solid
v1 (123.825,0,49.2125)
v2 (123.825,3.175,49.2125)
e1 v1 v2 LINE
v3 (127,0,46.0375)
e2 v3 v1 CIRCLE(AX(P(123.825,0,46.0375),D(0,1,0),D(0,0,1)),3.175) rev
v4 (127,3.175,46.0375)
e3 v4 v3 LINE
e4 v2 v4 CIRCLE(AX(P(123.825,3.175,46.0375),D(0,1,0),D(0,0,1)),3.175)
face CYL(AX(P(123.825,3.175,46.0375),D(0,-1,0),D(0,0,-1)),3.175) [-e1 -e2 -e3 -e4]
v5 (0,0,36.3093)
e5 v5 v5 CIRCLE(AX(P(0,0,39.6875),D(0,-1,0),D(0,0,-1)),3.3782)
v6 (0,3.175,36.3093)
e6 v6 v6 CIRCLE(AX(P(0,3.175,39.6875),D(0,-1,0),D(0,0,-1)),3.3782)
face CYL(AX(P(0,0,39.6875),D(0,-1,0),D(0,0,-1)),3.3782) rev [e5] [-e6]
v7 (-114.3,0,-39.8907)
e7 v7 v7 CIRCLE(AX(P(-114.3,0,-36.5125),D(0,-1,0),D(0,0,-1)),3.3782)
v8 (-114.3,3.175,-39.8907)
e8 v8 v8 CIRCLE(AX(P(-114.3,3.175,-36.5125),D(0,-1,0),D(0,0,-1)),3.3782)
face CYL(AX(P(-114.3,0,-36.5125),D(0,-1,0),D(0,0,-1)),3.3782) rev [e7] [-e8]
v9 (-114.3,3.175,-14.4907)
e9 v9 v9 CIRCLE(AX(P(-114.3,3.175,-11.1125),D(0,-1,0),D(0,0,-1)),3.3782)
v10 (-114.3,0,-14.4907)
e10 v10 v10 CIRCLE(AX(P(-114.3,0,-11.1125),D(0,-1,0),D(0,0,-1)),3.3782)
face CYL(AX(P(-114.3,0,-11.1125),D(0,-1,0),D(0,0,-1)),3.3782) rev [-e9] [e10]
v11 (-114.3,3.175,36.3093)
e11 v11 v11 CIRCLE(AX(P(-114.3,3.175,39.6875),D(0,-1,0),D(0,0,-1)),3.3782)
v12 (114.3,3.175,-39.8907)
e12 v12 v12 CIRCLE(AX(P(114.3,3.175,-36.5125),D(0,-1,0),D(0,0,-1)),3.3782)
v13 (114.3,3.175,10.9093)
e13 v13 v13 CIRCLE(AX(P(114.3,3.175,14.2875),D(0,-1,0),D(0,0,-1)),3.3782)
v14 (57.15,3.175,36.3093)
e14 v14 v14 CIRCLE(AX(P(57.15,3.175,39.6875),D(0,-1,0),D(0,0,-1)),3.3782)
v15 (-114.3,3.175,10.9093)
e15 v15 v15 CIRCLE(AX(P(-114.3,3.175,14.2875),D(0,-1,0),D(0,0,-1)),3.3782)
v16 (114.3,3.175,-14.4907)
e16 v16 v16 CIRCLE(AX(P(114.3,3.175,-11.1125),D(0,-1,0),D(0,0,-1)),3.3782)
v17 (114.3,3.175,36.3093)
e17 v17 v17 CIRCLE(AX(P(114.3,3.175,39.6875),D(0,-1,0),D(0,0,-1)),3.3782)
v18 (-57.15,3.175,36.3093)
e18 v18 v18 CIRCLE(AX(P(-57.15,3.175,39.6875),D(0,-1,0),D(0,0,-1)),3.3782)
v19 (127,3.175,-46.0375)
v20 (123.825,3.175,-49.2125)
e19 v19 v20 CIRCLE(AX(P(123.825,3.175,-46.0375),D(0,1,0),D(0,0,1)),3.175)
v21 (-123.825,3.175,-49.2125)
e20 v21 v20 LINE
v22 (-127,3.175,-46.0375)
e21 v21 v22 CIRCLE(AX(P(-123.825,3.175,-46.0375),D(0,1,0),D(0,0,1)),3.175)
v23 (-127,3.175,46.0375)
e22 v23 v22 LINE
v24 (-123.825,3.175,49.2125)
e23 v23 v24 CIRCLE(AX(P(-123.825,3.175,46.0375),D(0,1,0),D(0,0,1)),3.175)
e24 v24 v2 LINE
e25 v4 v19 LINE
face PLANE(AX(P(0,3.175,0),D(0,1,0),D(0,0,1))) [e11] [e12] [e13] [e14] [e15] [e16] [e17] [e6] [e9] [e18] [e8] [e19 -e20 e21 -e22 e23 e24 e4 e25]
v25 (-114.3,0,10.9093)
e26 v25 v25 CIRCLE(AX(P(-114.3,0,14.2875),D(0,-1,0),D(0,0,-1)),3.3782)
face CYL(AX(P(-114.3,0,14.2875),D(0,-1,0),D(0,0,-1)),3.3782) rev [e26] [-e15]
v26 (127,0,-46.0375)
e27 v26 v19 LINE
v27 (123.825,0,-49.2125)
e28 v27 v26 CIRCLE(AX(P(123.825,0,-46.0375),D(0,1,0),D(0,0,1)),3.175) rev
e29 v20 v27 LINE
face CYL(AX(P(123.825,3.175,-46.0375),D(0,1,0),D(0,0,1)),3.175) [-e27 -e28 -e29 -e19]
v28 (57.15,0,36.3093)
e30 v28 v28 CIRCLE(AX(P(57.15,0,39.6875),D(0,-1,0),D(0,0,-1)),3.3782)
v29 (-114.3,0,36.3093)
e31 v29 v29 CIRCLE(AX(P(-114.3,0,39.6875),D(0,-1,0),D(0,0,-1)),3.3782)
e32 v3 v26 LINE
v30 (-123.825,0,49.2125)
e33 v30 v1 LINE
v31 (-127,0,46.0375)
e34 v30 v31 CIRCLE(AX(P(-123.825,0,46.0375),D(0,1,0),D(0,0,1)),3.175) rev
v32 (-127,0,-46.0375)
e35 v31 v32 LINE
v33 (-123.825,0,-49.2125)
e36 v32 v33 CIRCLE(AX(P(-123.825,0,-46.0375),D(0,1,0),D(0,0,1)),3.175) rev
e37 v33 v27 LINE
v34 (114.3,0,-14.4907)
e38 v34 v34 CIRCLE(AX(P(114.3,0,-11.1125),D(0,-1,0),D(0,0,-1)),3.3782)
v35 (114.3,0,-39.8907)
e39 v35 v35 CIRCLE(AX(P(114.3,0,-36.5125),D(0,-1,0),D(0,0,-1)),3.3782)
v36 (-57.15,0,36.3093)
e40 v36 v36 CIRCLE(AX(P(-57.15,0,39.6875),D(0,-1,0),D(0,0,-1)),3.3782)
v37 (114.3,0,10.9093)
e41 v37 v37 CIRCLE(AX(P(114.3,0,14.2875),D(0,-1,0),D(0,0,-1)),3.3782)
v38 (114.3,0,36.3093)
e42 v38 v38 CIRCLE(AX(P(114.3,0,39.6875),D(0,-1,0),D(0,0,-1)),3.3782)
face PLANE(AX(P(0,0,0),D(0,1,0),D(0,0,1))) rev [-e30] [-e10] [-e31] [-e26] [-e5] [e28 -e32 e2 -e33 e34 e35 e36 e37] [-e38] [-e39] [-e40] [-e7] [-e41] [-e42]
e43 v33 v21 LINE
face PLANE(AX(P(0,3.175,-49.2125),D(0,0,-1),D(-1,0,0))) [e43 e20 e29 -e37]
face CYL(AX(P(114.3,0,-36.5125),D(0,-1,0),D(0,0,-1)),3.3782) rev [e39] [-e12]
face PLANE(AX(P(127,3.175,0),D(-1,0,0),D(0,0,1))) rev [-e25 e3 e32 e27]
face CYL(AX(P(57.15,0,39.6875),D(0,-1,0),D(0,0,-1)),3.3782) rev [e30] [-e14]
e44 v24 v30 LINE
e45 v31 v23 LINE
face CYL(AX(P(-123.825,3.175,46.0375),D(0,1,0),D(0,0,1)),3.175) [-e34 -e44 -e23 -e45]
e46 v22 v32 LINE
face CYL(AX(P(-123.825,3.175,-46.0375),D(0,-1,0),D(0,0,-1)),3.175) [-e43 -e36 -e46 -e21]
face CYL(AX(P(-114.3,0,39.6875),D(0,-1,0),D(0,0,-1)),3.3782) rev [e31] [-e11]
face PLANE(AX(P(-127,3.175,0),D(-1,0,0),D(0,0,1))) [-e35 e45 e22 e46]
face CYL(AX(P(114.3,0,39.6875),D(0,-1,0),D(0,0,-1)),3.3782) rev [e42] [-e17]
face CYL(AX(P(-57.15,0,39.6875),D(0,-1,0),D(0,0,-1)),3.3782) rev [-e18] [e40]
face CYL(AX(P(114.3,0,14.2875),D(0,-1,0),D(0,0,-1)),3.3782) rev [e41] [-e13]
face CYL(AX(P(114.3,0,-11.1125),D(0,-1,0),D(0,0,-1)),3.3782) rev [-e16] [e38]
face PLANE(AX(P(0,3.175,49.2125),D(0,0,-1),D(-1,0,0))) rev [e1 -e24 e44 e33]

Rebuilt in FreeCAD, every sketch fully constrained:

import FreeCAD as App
import Part
import Sketcher
Q = App.Units.Quantity


def edges_at(feature, points):
    """Names of the edges that pass closest to the given points."""
    edges = feature.Shape.Edges
    near = lambda p: min(range(len(edges)), key=lambda i: edges[i].distToShape(Part.Vertex(*p))[0])
    return sorted({f"Edge{near(p) + 1}" for p in points})

doc = App.newDocument("Part")
body = doc.addObject("PartDesign::Body", "Body")

# Sketch on XZ plane
sketch1 = doc.addObject("Sketcher::SketchObject", "Sketch")
body.addObject(sketch1)
sketch1.AttachmentSupport = (doc.XZ_Plane, [""])
sketch1.MapMode = "FlatFace"
sketch1.addGeometry([
    Part.LineSegment(App.Vector(-127, -49, 0), App.Vector(-127, 49, 0)),
    Part.LineSegment(App.Vector(-127, 49, 0), App.Vector(127, 49, 0)),
    Part.LineSegment(App.Vector(127, 49, 0), App.Vector(127, -49, 0)),
    Part.LineSegment(App.Vector(127, -49, 0), App.Vector(-127, -49, 0)),
], False)
sketch1.addConstraint([
    Sketcher.Constraint("Coincident", 0, 2, 1, 1),
    Sketcher.Constraint("Coincident", 1, 2, 2, 1),
    Sketcher.Constraint("Coincident", 2, 2, 3, 1),
    Sketcher.Constraint("Coincident", 3, 2, 0, 1),
    Sketcher.Constraint("Vertical", 0),
    Sketcher.Constraint("Horizontal", 1),
    Sketcher.Constraint("Vertical", 2),
    Sketcher.Constraint("Horizontal", 3),
    Sketcher.Constraint("Symmetric", 0, 2, 2, 2, -1, 1),
    Sketcher.Constraint("DistanceX", 1, 1, 1, 2, Q("10 in")),
    Sketcher.Constraint("DistanceY", 0, 1, 0, 2, Q("3.875 in")),
])
pad1 = doc.addObject("PartDesign::Pad", "Pad")
body.addObject(pad1)
pad1.Profile = sketch1
pad1.Length = Q("0.125 in")
pad1.Reversed = True

# Sketch on XZ plane
sketch2 = doc.addObject("Sketcher::SketchObject", "Sketch001")
body.addObject(sketch2)
sketch2.AttachmentSupport = (doc.XZ_Plane, [""])
sketch2.MapMode = "FlatFace"
sketch2.addGeometry([
    Part.Circle(App.Vector(114.3, -36.5, 0), App.Vector(0, 0, 1), 3.4),  # 0
    Part.Circle(App.Vector(114.3, -11.1, 0), App.Vector(0, 0, 1), 3.4),  # 1
    Part.Circle(App.Vector(114.3, 14.3, 0), App.Vector(0, 0, 1), 3.4),  # 2
    Part.Circle(App.Vector(57.1, 39.7, 0), App.Vector(0, 0, 1), 3.4),  # 3
    Part.Circle(App.Vector(0, 39.7, 0), App.Vector(0, 0, 1), 3.4),  # 4
    Part.Circle(App.Vector(-57.1, 39.7, 0), App.Vector(0, 0, 1), 3.4),  # 5
    Part.Circle(App.Vector(-114.3, 14.3, 0), App.Vector(0, 0, 1), 3.4),  # 6
    Part.Circle(App.Vector(-114.3, -11.1, 0), App.Vector(0, 0, 1), 3.4),  # 7
    Part.Circle(App.Vector(-114.3, -36.5, 0), App.Vector(0, 0, 1), 3.4),  # 8
    Part.Circle(App.Vector(-114.3, 39.7, 0), App.Vector(0, 0, 1), 3.4),  # 9
    Part.Circle(App.Vector(114.3, 39.7, 0), App.Vector(0, 0, 1), 3.4),  # 10
], False)
sketch2.addConstraint([
    Sketcher.Constraint("Equal", 0, 1),
    Sketcher.Constraint("Equal", 1, 2),
    Sketcher.Constraint("Equal", 2, 3),
    Sketcher.Constraint("Equal", 3, 4),
    Sketcher.Constraint("Equal", 4, 5),
    Sketcher.Constraint("Equal", 5, 6),
    Sketcher.Constraint("Equal", 6, 7),
    Sketcher.Constraint("Equal", 7, 8),
    Sketcher.Constraint("Equal", 8, 9),
    Sketcher.Constraint("Equal", 9, 10),
    Sketcher.Constraint("Symmetric", 3, 3, 5, 3, -2),
    Sketcher.Constraint("Symmetric", 2, 3, 6, 3, -2),
    Sketcher.Constraint("Symmetric", 1, 3, 7, 3, -2),
    Sketcher.Constraint("Symmetric", 0, 3, 8, 3, -2),
    Sketcher.Constraint("Symmetric", 9, 3, 10, 3, -2),
    Sketcher.Constraint("PointOnObject", 4, 3, -2),
    Sketcher.Constraint("Horizontal", 3, 3, 4, 3),
    Sketcher.Constraint("Horizontal", 5, 3, 9, 3),
    Sketcher.Constraint("Vertical", 0, 3, 1, 3),
    Sketcher.Constraint("Vertical", 1, 3, 2, 3),
    Sketcher.Constraint("Vertical", 8, 3, 9, 3),
    Sketcher.Constraint("Diameter", 0, Q("0.266 in")),
    Sketcher.Constraint("DistanceY", 0, 3, 1, 3, Q("1 in")),
    Sketcher.Constraint("DistanceY", 1, 3, 2, 3, Q("1 in")),
    Sketcher.Constraint("DistanceY", 2, 3, 3, 3, Q("1 in")),
    Sketcher.Constraint("DistanceX", 6, 3, 2, 3, Q("9 in")),
    Sketcher.Constraint("DistanceX", 5, 3, 3, 3, Q("4.5 in")),
    Sketcher.Constraint("DistanceY", 0, 3, -1, 1, Q("1.4375 in")),
])
doc.recompute()
hole = doc.addObject("PartDesign::Hole", "Hole")
body.addObject(hole)
hole.Profile = sketch2
hole.ThreadType = "None"
hole.Diameter = Q("0.266 in")
hole.DepthType = "ThroughAll"
doc.recompute()

fillet = doc.addObject("PartDesign::Fillet", "Fillet")
body.addObject(fillet)
fillet.Base = (hole, edges_at(hole, [
    (-127, 1.587, 49.212),
    (-127, 1.587, -49.212),
    (127, 1.587, -49.212),
    (127, 1.587, 49.212),
]))
fillet.Radius = Q("0.125 in")

doc.recompute()
